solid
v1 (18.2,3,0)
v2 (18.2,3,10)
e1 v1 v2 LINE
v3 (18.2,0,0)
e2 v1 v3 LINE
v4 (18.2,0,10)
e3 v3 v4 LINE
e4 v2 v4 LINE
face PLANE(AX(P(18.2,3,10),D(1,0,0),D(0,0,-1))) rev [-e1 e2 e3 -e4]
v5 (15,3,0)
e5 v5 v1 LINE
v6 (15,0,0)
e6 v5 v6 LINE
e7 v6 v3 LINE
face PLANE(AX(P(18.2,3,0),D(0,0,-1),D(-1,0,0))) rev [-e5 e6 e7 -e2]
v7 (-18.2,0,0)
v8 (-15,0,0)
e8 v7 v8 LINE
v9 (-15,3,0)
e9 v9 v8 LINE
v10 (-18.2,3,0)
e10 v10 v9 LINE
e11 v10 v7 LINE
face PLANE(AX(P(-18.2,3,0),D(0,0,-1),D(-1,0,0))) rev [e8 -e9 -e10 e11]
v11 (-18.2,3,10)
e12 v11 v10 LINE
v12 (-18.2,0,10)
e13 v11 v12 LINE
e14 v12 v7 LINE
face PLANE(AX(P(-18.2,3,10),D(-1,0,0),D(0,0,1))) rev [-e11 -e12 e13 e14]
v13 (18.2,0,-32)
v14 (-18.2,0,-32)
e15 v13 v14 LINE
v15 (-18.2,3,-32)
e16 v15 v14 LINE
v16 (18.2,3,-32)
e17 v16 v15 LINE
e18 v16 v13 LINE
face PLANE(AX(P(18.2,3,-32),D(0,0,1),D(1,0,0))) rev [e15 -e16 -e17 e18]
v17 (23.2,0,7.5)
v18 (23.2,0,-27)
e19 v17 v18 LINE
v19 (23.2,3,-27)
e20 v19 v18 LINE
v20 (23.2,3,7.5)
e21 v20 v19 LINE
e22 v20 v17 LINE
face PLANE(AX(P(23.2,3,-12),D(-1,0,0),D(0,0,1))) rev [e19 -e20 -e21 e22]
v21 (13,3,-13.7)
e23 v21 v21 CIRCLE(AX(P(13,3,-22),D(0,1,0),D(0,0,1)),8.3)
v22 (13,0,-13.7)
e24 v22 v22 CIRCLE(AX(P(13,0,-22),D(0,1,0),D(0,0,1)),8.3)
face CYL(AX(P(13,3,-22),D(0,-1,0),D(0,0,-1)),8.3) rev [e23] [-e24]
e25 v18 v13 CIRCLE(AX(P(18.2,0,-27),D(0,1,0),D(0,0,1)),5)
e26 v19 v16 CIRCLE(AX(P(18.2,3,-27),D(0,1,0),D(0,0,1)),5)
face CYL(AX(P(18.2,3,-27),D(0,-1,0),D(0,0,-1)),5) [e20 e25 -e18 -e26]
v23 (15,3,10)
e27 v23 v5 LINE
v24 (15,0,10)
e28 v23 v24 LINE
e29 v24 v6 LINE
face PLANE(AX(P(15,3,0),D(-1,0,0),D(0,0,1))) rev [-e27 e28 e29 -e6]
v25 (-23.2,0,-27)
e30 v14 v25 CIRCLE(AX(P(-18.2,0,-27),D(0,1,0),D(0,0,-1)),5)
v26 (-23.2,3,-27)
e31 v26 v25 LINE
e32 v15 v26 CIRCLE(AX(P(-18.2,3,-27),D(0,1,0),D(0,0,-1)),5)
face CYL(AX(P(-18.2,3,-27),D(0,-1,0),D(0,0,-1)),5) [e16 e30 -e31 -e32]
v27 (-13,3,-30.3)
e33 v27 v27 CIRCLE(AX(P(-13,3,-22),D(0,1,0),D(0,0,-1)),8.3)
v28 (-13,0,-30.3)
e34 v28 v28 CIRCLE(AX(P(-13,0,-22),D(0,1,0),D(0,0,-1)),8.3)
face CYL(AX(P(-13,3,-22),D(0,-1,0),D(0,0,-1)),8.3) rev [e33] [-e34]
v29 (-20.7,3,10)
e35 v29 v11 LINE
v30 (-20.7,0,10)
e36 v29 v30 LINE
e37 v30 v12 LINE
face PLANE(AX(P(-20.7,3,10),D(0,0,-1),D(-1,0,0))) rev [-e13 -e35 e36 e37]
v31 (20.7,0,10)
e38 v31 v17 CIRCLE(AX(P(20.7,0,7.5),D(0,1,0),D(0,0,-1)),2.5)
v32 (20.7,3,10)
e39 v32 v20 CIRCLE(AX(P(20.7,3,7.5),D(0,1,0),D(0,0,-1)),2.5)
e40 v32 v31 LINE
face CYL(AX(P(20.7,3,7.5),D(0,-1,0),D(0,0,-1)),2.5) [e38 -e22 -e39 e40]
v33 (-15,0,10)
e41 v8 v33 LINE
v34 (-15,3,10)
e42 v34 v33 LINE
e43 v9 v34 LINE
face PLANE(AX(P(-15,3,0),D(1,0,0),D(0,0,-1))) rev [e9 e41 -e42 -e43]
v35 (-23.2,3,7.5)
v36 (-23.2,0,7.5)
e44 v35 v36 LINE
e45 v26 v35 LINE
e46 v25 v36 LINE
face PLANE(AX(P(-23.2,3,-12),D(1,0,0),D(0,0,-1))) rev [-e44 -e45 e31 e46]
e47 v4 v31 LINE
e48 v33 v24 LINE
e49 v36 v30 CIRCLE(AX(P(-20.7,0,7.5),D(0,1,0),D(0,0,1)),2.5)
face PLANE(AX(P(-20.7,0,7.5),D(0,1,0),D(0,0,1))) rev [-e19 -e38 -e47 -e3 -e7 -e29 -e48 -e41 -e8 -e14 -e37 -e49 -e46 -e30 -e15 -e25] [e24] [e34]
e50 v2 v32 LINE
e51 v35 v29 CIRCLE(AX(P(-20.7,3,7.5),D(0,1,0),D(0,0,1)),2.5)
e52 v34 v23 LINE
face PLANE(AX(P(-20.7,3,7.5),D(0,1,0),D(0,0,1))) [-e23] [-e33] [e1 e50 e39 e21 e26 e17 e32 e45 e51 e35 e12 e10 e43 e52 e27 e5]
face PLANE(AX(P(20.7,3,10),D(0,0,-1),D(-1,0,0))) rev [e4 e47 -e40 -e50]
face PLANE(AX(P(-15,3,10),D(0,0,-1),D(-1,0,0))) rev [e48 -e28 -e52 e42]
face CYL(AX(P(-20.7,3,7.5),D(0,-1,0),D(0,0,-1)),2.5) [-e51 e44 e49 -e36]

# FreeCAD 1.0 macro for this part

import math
import FreeCAD as App
import Part
import Sketcher
Q = App.Units.Quantity

doc = App.newDocument("Part")
body = doc.addObject("PartDesign::Body", "Body")

# Sketch on XZ plane
sketch1 = body.newObject("Sketcher::SketchObject", "Sketch")
sketch1.AttachmentSupport = (doc.getObject("XZ_Plane"), [""])
sketch1.MapMode = "FlatFace"
sketch1.addGeometry([
    Part.LineSegment(App.Vector(-15, 0, 0), App.Vector(-15, 10, 0)),  # 0
    Part.LineSegment(App.Vector(-15, 10, 0), App.Vector(15, 10, 0)),  # 1
    Part.LineSegment(App.Vector(15, 10, 0), App.Vector(15, 0, 0)),  # 2
    Part.LineSegment(App.Vector(15, 0, 0), App.Vector(18.2, 0, 0)),  # 3
    Part.LineSegment(App.Vector(18.2, 0, 0), App.Vector(18.2, 10, 0)),  # 4
    Part.LineSegment(App.Vector(18.2, 10, 0), App.Vector(20.7, 10, 0)),  # 5
    Part.ArcOfCircle(Part.Circle(App.Vector(20.7, 7.5, 0), App.Vector(0, 0, 1), 2.5), math.radians(0), math.radians(90)),  # 6
    Part.LineSegment(App.Vector(23.2, 7.5, 0), App.Vector(23.2, -27, 0)),  # 7
    Part.ArcOfCircle(Part.Circle(App.Vector(18.2, -27, 0), App.Vector(0, 0, 1), 5), math.radians(-90), math.radians(0)),  # 8
    Part.LineSegment(App.Vector(18.2, -32, 0), App.Vector(-18.2, -32, 0)),  # 9
    Part.ArcOfCircle(Part.Circle(App.Vector(-18.2, -27, 0), App.Vector(0, 0, 1), 5), math.radians(180), math.radians(270)),  # 10
    Part.LineSegment(App.Vector(-23.2, -27, 0), App.Vector(-23.2, 7.5, 0)),  # 11
    Part.ArcOfCircle(Part.Circle(App.Vector(-20.7, 7.5, 0), App.Vector(0, 0, 1), 2.5), math.radians(90), math.radians(180)),  # 12
    Part.LineSegment(App.Vector(-20.7, 10, 0), App.Vector(-18.2, 10, 0)),  # 13
    Part.LineSegment(App.Vector(-18.2, 10, 0), App.Vector(-18.2, 0, 0)),  # 14
    Part.LineSegment(App.Vector(-18.2, 0, 0), App.Vector(-15, 0, 0)),  # 15
    Part.Circle(App.Vector(-13, -22, 0), App.Vector(0, 0, 1), 8.3),  # 16
    Part.Circle(App.Vector(13, -22, 0), App.Vector(0, 0, 1), 8.3),  # 17
], False)
sketch1.addConstraint([
    Sketcher.Constraint("Coincident", 0, 2, 1, 1),
    Sketcher.Constraint("Coincident", 1, 2, 2, 1),
    Sketcher.Constraint("Coincident", 2, 2, 3, 1),
    Sketcher.Constraint("Coincident", 3, 2, 4, 1),
    Sketcher.Constraint("Coincident", 4, 2, 5, 1),
    Sketcher.Constraint("Tangent", 5, 2, 6, 2),
    Sketcher.Constraint("Tangent", 6, 1, 7, 1),
    Sketcher.Constraint("Tangent", 7, 2, 8, 2),
    Sketcher.Constraint("Tangent", 8, 1, 9, 1),
    Sketcher.Constraint("Tangent", 9, 2, 10, 2),
    Sketcher.Constraint("Tangent", 10, 1, 11, 1),
    Sketcher.Constraint("Tangent", 11, 2, 12, 2),
    Sketcher.Constraint("Tangent", 12, 1, 13, 1),
    Sketcher.Constraint("Coincident", 13, 2, 14, 1),
    Sketcher.Constraint("Coincident", 14, 2, 15, 1),
    Sketcher.Constraint("Coincident", 15, 2, 0, 1),
    Sketcher.Constraint("Vertical", 0),
    Sketcher.Constraint("Horizontal", 1),
    Sketcher.Constraint("Vertical", 2),
    Sketcher.Constraint("Horizontal", 3),
    Sketcher.Constraint("Vertical", 4),
    Sketcher.Constraint("Horizontal", 5),
    Sketcher.Constraint("Vertical", 7),
    Sketcher.Constraint("Horizontal", 9),
    Sketcher.Constraint("Vertical", 11),
    Sketcher.Constraint("Horizontal", 13),
    Sketcher.Constraint("Vertical", 14),
    Sketcher.Constraint("Horizontal", 15),
    Sketcher.Constraint("Equal", 8, 10),
    Sketcher.Constraint("Equal", 6, 12),
    Sketcher.Constraint("Equal", 16, 17),
    Sketcher.Constraint("Symmetric", 3, 2, 14, 2, -1, 1),
    Sketcher.Constraint("Symmetric", 6, 3, 12, 3, -2),
    Sketcher.Constraint("Symmetric", 16, 3, 17, 3, -2),
    Sketcher.Constraint("Symmetric", 2, 2, 15, 2, -2),
    Sketcher.Constraint("Horizontal", 1, 2, 4, 2),
    Sketcher.Constraint("Vertical", 8, 3, 3, 2),
    Sketcher.Constraint("Radius", 8, Q("5 mm")),
    Sketcher.Constraint("Diameter", 16, Q("16.6 mm")),
    Sketcher.Constraint("Radius", 6, Q("2.5 mm")),
    Sketcher.Constraint("DistanceX", 1, 1, 1, 2, Q("30 mm")),
    Sketcher.Constraint("DistanceY", 0, 1, 0, 2, Q("10 mm")),
    Sketcher.Constraint("DistanceX", 3, 1, 3, 2, Q("3.2 mm")),
    Sketcher.Constraint("DistanceY", 7, 2, 7, 1, Q("34.5 mm")),
    Sketcher.Constraint("DistanceX", 16, 3, -1, 1, Q("13 mm")),
    Sketcher.Constraint("DistanceY", 16, 3, -1, 1, Q("22 mm")),
])
pad1 = body.newObject("PartDesign::Pad", "Pad")
pad1.Profile = sketch1
pad1.Length = 3
pad1.Reversed = True

doc.recompute()
